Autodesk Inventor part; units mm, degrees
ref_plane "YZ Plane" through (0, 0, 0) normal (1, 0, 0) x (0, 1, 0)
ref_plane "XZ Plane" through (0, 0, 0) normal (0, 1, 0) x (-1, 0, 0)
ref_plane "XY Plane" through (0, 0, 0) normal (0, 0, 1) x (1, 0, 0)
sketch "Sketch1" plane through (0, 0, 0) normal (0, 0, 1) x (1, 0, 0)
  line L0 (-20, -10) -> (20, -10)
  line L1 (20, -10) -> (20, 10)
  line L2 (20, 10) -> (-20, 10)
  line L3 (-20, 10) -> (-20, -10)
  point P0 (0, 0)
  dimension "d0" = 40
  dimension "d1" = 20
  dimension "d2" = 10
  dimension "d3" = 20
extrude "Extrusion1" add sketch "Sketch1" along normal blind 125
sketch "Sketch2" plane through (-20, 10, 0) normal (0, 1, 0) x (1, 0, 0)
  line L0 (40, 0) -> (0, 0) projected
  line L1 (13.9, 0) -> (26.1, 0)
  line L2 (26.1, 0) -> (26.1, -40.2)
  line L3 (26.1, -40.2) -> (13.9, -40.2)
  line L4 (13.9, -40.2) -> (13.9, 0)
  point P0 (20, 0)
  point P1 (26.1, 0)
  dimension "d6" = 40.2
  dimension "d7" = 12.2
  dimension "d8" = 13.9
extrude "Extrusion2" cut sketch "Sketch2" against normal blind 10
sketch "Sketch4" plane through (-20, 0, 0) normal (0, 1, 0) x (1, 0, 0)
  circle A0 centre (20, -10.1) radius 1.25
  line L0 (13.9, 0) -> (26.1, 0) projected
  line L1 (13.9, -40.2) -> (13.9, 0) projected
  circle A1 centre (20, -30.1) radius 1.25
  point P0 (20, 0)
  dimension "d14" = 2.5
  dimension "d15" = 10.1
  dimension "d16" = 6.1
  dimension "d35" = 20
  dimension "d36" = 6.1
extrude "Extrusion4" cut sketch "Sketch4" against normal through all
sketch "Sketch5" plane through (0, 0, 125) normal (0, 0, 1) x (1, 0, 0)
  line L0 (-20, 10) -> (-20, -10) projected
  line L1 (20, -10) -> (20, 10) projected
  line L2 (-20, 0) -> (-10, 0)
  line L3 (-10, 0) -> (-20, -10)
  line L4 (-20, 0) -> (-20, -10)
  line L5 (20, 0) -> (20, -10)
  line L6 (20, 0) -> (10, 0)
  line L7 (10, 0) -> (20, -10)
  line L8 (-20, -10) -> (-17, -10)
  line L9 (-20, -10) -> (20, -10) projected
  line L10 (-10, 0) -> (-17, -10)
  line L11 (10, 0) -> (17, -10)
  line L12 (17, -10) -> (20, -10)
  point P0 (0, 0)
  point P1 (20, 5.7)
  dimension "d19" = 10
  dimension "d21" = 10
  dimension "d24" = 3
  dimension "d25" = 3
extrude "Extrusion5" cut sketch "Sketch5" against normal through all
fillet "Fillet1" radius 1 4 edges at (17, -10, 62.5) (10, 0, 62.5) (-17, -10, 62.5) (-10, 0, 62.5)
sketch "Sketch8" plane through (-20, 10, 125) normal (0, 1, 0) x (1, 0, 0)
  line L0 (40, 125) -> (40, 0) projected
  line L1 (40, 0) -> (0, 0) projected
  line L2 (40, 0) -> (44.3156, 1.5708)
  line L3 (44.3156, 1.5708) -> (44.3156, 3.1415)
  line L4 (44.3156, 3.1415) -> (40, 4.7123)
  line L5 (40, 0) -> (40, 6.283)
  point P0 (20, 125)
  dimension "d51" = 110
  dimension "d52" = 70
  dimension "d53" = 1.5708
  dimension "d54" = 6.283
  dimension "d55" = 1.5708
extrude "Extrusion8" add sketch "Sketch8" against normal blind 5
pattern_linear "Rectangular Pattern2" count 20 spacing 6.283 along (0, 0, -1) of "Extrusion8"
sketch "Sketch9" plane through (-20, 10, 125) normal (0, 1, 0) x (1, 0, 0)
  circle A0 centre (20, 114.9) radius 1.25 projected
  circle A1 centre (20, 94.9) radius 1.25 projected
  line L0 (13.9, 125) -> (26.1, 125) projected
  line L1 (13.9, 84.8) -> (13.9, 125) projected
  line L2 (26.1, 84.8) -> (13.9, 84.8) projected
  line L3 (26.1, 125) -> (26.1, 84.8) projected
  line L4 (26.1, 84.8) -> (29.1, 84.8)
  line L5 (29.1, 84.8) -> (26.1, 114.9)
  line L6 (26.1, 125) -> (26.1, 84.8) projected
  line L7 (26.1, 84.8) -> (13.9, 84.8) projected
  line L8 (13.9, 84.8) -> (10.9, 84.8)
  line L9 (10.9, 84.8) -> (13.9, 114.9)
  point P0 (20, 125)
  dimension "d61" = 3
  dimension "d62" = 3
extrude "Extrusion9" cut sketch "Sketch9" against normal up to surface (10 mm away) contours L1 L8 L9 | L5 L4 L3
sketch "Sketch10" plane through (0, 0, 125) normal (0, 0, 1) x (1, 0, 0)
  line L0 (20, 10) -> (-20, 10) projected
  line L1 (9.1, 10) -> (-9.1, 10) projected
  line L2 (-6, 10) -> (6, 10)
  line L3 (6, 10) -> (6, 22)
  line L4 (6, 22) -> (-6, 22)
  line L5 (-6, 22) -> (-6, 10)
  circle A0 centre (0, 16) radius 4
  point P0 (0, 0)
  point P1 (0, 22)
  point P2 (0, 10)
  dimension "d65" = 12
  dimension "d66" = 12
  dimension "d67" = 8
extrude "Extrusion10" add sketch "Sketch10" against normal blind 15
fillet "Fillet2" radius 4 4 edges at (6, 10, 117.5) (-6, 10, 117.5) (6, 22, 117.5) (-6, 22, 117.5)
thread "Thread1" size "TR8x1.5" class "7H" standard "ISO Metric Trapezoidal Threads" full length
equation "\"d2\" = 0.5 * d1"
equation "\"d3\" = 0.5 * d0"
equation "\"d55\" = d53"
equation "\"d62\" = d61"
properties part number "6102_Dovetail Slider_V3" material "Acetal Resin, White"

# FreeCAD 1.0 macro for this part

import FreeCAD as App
import Part
import Sketcher
from FreeCAD import Vector
Q = App.Units.Quantity


def edges_at(feature, points):
    """Names of the edges that pass closest to the given points."""
    edges = feature.Shape.Edges
    near = lambda p: min(range(len(edges)), key=lambda i: edges[i].distToShape(Part.Vertex(*p))[0])
    return sorted({f"Edge{near(p) + 1}" for p in points})

doc = App.newDocument("Part")
body = doc.addObject("PartDesign::Body", "Body")

# Sketch on XY plane
sketch1 = doc.addObject("Sketcher::SketchObject", "Sketch")
body.addObject(sketch1)
sketch1.AttachmentSupport = (doc.XY_Plane, [""])
sketch1.MapMode = "FlatFace"
sketch1.addGeometry(Part.LineSegment(Vector(-20, 10, 0), Vector(-20, -10, 0)), False)
sketch1.addGeometry(Part.LineSegment(Vector(-20, -10, 0), Vector(20, -10, 0)), False)
sketch1.addGeometry(Part.LineSegment(Vector(20, -10, 0), Vector(20, 10, 0)), False)
sketch1.addGeometry(Part.LineSegment(Vector(20, 10, 0), Vector(-20, 10, 0)), False)
sketch1.addConstraint(Sketcher.Constraint("Coincident", 0, 2, 1, 1))
sketch1.addConstraint(Sketcher.Constraint("Coincident", 1, 2, 2, 1))
sketch1.addConstraint(Sketcher.Constraint("Coincident", 2, 2, 3, 1))
sketch1.addConstraint(Sketcher.Constraint("Coincident", 3, 2, 0, 1))
sketch1.addConstraint(Sketcher.Constraint("Vertical", 0))
sketch1.addConstraint(Sketcher.Constraint("Horizontal", 1))
sketch1.addConstraint(Sketcher.Constraint("Vertical", 2))
sketch1.addConstraint(Sketcher.Constraint("Horizontal", 3))
sketch1.addConstraint(Sketcher.Constraint("Symmetric", 0, 2, 2, 2, -1, 1))
sketch1.addConstraint(Sketcher.Constraint("DistanceX", 1, 1, 1, 2, 40.0))
sketch1.addConstraint(Sketcher.Constraint("DistanceY", 0, 2, 0, 1, 20.0))
pad1 = doc.addObject("PartDesign::Pad", "Pad")
body.addObject(pad1)
pad1.Profile = sketch1
pad1.Length = 125

# Sketch on XZ plane
sketch2 = doc.addObject("Sketcher::SketchObject", "Sketch001")
body.addObject(sketch2)
sketch2.AttachmentSupport = (doc.XZ_Plane, [""])
sketch2.MapMode = "FlatFace"
sketch2.AttachmentOffset = App.Placement(Vector(0, 0, -10), App.Rotation())
sketch2.addGeometry(Part.LineSegment(Vector(6, 40, 0), Vector(6, 0, 0)), False)
sketch2.addGeometry(Part.LineSegment(Vector(6, 0, 0), Vector(-6, 0, 0)), False)
sketch2.addGeometry(Part.LineSegment(Vector(-6, 0, 0), Vector(-6, 40, 0)), False)
sketch2.addGeometry(Part.LineSegment(Vector(-6, 40, 0), Vector(6, 40, 0)), False)
sketch2.addConstraint(Sketcher.Constraint("Coincident", 0, 2, 1, 1))
sketch2.addConstraint(Sketcher.Constraint("Coincident", 1, 2, 2, 1))
sketch2.addConstraint(Sketcher.Constraint("Coincident", 2, 2, 3, 1))
sketch2.addConstraint(Sketcher.Constraint("Coincident", 3, 2, 0, 1))
sketch2.addConstraint(Sketcher.Constraint("Vertical", 0))
sketch2.addConstraint(Sketcher.Constraint("Horizontal", 1))
sketch2.addConstraint(Sketcher.Constraint("Vertical", 2))
sketch2.addConstraint(Sketcher.Constraint("Horizontal", 3))
sketch2.addConstraint(Sketcher.Constraint("Symmetric", 0, 2, 1, 2, -1, 1))
sketch2.addConstraint(Sketcher.Constraint("DistanceX", 1, 2, 1, 1, 12.2))
sketch2.addConstraint(Sketcher.Constraint("DistanceY", 0, 2, 0, 1, 40.2))
pocket1 = doc.addObject("PartDesign::Pocket", "Pocket")
body.addObject(pocket1)
pocket1.Profile = sketch2
pocket1.Length = 10
pocket1.Reversed = True

# Sketch on XZ plane
sketch3 = doc.addObject("Sketcher::SketchObject", "Sketch002")
body.addObject(sketch3)
sketch3.AttachmentSupport = (doc.XZ_Plane, [""])
sketch3.MapMode = "FlatFace"
sketch3.addGeometry(Part.Circle(Vector(0, 10.1, 0), Vector(0, 0, 1), 1.2), False)
sketch3.addGeometry(Part.Circle(Vector(0, 30.1, 0), Vector(0, 0, 1), 1.2), False)
sketch3.addConstraint(Sketcher.Constraint("Equal", 0, 1))
sketch3.addConstraint(Sketcher.Constraint("PointOnObject", 0, 3, -2))
sketch3.addConstraint(Sketcher.Constraint("PointOnObject", 1, 3, -2))
sketch3.addConstraint(Sketcher.Constraint("Diameter", 0, 2.5))
sketch3.addConstraint(Sketcher.Constraint("DistanceY", 0, 3, 1, 3, 20.0))
sketch3.addConstraint(Sketcher.Constraint("DistanceY", -1, 1, 0, 3, 10.1))
pocket2 = doc.addObject("PartDesign::Pocket", "Pocket001")
body.addObject(pocket2)
pocket2.Profile = sketch3
pocket2.Type = "ThroughAll"
pocket2.Reversed = True

# Sketch on XY plane
sketch4 = doc.addObject("Sketcher::SketchObject", "Sketch003")
body.addObject(sketch4)
sketch4.AttachmentSupport = (doc.XY_Plane, [""])
sketch4.MapMode = "FlatFace"
sketch4.AttachmentOffset = App.Placement(Vector(0, 0, 125), App.Rotation())
sketch4.addGeometry(Part.LineSegment(Vector(-10, 0, 0), Vector(-20, 0, 0)), False)
sketch4.addGeometry(Part.LineSegment(Vector(-20, 0, 0), Vector(-20, -10, 0)), False)
sketch4.addGeometry(Part.LineSegment(Vector(-20, -10, 0), Vector(-17, -10, 0)), False)
sketch4.addGeometry(Part.LineSegment(Vector(-17, -10, 0), Vector(-10, 0, 0)), False)
sketch4.addGeometry(Part.LineSegment(Vector(10, 0, 0), Vector(17, -10, 0)), False)
sketch4.addGeometry(Part.LineSegment(Vector(17, -10, 0), Vector(20, -10, 0)), False)
sketch4.addGeometry(Part.LineSegment(Vector(20, -10, 0), Vector(20, 0, 0)), False)
sketch4.addGeometry(Part.LineSegment(Vector(20, 0, 0), Vector(10, 0, 0)), False)
sketch4.addConstraint(Sketcher.Constraint("Coincident", 0, 2, 1, 1))
sketch4.addConstraint(Sketcher.Constraint("Coincident", 1, 2, 2, 1))
sketch4.addConstraint(Sketcher.Constraint("Coincident", 2, 2, 3, 1))
sketch4.addConstraint(Sketcher.Constraint("Coincident", 3, 2, 0, 1))
sketch4.addConstraint(Sketcher.Constraint("Coincident", 4, 2, 5, 1))
sketch4.addConstraint(Sketcher.Constraint("Coincident", 5, 2, 6, 1))
sketch4.addConstraint(Sketcher.Constraint("Coincident", 6, 2, 7, 1))
sketch4.addConstraint(Sketcher.Constraint("Coincident", 7, 2, 4, 1))
sketch4.addConstraint(Sketcher.Constraint("Horizontal", 0))
sketch4.addConstraint(Sketcher.Constraint("Vertical", 1))
sketch4.addConstraint(Sketcher.Constraint("Horizontal", 2))
sketch4.addConstraint(Sketcher.Constraint("Horizontal", 5))
sketch4.addConstraint(Sketcher.Constraint("Vertical", 6))
sketch4.addConstraint(Sketcher.Constraint("Horizontal", 7))
sketch4.addConstraint(Sketcher.Constraint("Symmetric", 0, 2, 6, 2, -1, 1))
sketch4.addConstraint(Sketcher.Constraint("Symmetric", 2, 2, 4, 2, -2))
sketch4.addConstraint(Sketcher.Constraint("Symmetric", 3, 2, 7, 2, -2))
sketch4.addConstraint(Sketcher.Constraint("Equal", 7, 1))
sketch4.addConstraint(Sketcher.Constraint("DistanceX", 0, 2, 0, 1, 10.0))
sketch4.addConstraint(Sketcher.Constraint("DistanceX", 2, 1, 2, 2, 3.0))
sketch4.addConstraint(Sketcher.Constraint("DistanceX", 3, 2, -1, 1, 10.0))
pocket3 = doc.addObject("PartDesign::Pocket", "Pocket002")
body.addObject(pocket3)
pocket3.Profile = sketch4
pocket3.Type = "ThroughAll"
doc.recompute()

fillet = doc.addObject("PartDesign::Fillet", "Fillet")
body.addObject(fillet)
fillet.Base = (pocket3, edges_at(pocket3, [
    (17, -10, 62.5),
    (10, 0, 62.5),
    (-17, -10, 62.5),
    (-10, 0, 62.5),
]))
fillet.Radius = 1

# Sketch on XZ plane
sketch5 = doc.addObject("Sketcher::SketchObject", "Sketch004")
body.addObject(sketch5)
sketch5.AttachmentSupport = (doc.XZ_Plane, [""])
sketch5.MapMode = "FlatFace"
sketch5.AttachmentOffset = App.Placement(Vector(0, 0, -10), App.Rotation())
sketch5.addGeometry(Part.LineSegment(Vector(24.3, 121.9, 0), Vector(20, 120.3, 0)), False)
sketch5.addGeometry(Part.LineSegment(Vector(20, 120.3, 0), Vector(20, 125, 0)), False)
sketch5.addGeometry(Part.LineSegment(Vector(20, 125, 0), Vector(24.3, 123.4, 0)), False)
sketch5.addGeometry(Part.LineSegment(Vector(24.3, 123.4, 0), Vector(24.3, 121.9, 0)), False)
sketch5.addConstraint(Sketcher.Constraint("Coincident", 0, 2, 1, 1))
sketch5.addConstraint(Sketcher.Constraint("Coincident", 1, 2, 2, 1))
sketch5.addConstraint(Sketcher.Constraint("Coincident", 2, 2, 3, 1))
sketch5.addConstraint(Sketcher.Constraint("Coincident", 3, 2, 0, 1))
sketch5.addConstraint(Sketcher.Constraint("Vertical", 1))
sketch5.addConstraint(Sketcher.Constraint("Vertical", 3))
sketch5.addConstraint(Sketcher.Constraint("Equal", 0, 2))
sketch5.addConstraint(Sketcher.Constraint("Angle", 0, Q("-159.9994 deg")))
sketch5.addConstraint(Sketcher.Constraint("DistanceY", 3, 2, 3, 1, 1.5707))
sketch5.addConstraint(Sketcher.Constraint("DistanceX", -1, 1, 0, 2, 20.0))
sketch5.addConstraint(Sketcher.Constraint("DistanceY", -1, 1, 1, 2, 125.0))
sketch5.addConstraint(Sketcher.Constraint("DistanceY", 2, 2, 1, 2, 1.5708))
pad2 = doc.addObject("PartDesign::Pad", "Pad001")
body.addObject(pad2)
pad2.Profile = sketch5
pad2.Length = 5
doc.recompute()

linearpattern = doc.addObject("PartDesign::LinearPattern", "LinearPattern")
body.addObject(linearpattern)
linearpattern.Originals = [pad2]
linearpattern.Direction = (doc.Z_Axis, [""])
linearpattern.Mode = "offset"
linearpattern.Offset = 6.283
linearpattern.Occurrences = 20
linearpattern.Reversed = True
body.Tip = linearpattern

# Sketch on XZ plane
sketch6 = doc.addObject("Sketcher::SketchObject", "Sketch005")
body.addObject(sketch6)
sketch6.AttachmentSupport = (doc.XZ_Plane, [""])
sketch6.MapMode = "FlatFace"
sketch6.AttachmentOffset = App.Placement(Vector(0, 0, -10), App.Rotation())
sketch6.addGeometry(Part.LineSegment(Vector(-6.1, 40.2, 0), Vector(-6.1, 10.1, 0)), False)
sketch6.addGeometry(Part.LineSegment(Vector(-6.1, 10.1, 0), Vector(-9.1, 40.2, 0)), False)
sketch6.addGeometry(Part.LineSegment(Vector(-9.1, 40.2, 0), Vector(-6.1, 40.2, 0)), False)
sketch6.addGeometry(Part.LineSegment(Vector(9.1, 40.2, 0), Vector(6.1, 10.1, 0)), False)
sketch6.addGeometry(Part.LineSegment(Vector(6.1, 10.1, 0), Vector(6.1, 40.2, 0)), False)
sketch6.addGeometry(Part.LineSegment(Vector(6.1, 40.2, 0), Vector(9.1, 40.2, 0)), False)
sketch6.addConstraint(Sketcher.Constraint("Coincident", 0, 2, 1, 1))
sketch6.addConstraint(Sketcher.Constraint("Coincident", 1, 2, 2, 1))
sketch6.addConstraint(Sketcher.Constraint("Coincident", 2, 2, 0, 1))
sketch6.addConstraint(Sketcher.Constraint("Coincident", 3, 2, 4, 1))
sketch6.addConstraint(Sketcher.Constraint("Coincident", 4, 2, 5, 1))
sketch6.addConstraint(Sketcher.Constraint("Coincident", 5, 2, 3, 1))
sketch6.addConstraint(Sketcher.Constraint("Vertical", 0))
sketch6.addConstraint(Sketcher.Constraint("Horizontal", 2))
sketch6.addConstraint(Sketcher.Constraint("Vertical", 4))
sketch6.addConstraint(Sketcher.Constraint("Horizontal", 5))
sketch6.addConstraint(Sketcher.Constraint("Symmetric", 0, 2, 3, 2, -2))
sketch6.addConstraint(Sketcher.Constraint("Symmetric", 1, 2, 5, 2, -2))
sketch6.addConstraint(Sketcher.Constraint("DistanceX", 2, 1, 2, 2, 3.0))
sketch6.addConstraint(Sketcher.Constraint("DistanceY", 0, 2, 0, 1, 30.1))
sketch6.addConstraint(Sketcher.Constraint("DistanceX", 0, 2, -1, 1, 6.1))
sketch6.addConstraint(Sketcher.Constraint("DistanceY", -1, 1, 0, 2, 10.1))
pocket4 = doc.addObject("PartDesign::Pocket", "Pocket003")
body.addObject(pocket4)
pocket4.Profile = sketch6
pocket4.Length = 10
pocket4.Reversed = True

# Sketch on XY plane
sketch7 = doc.addObject("Sketcher::SketchObject", "Sketch006")
body.addObject(sketch7)
sketch7.AttachmentSupport = (doc.XY_Plane, [""])
sketch7.MapMode = "FlatFace"
sketch7.AttachmentOffset = App.Placement(Vector(0, 0, 125), App.Rotation())
sketch7.addGeometry(Part.LineSegment(Vector(-6, 10, 0), Vector(6, 10, 0)), False)
sketch7.addGeometry(Part.LineSegment(Vector(6, 10, 0), Vector(6, 22, 0)), False)
sketch7.addGeometry(Part.LineSegment(Vector(6, 22, 0), Vector(-6, 22, 0)), False)
sketch7.addGeometry(Part.LineSegment(Vector(-6, 22, 0), Vector(-6, 10, 0)), False)
sketch7.addGeometry(Part.Circle(Vector(0, 16, 0), Vector(0, 0, 1), 4), False)
sketch7.addConstraint(Sketcher.Constraint("Coincident", 0, 2, 1, 1))
sketch7.addConstraint(Sketcher.Constraint("Coincident", 1, 2, 2, 1))
sketch7.addConstraint(Sketcher.Constraint("Coincident", 2, 2, 3, 1))
sketch7.addConstraint(Sketcher.Constraint("Coincident", 3, 2, 0, 1))
sketch7.addConstraint(Sketcher.Constraint("Horizontal", 0))
sketch7.addConstraint(Sketcher.Constraint("Vertical", 1))
sketch7.addConstraint(Sketcher.Constraint("Horizontal", 2))
sketch7.addConstraint(Sketcher.Constraint("Vertical", 3))
sketch7.addConstraint(Sketcher.Constraint("PointOnObject", 4, 3, -2))
sketch7.addConstraint(Sketcher.Constraint("Equal", 2, 1))
sketch7.addConstraint(Sketcher.Constraint("Diameter", 4, 8.0))
sketch7.addConstraint(Sketcher.Constraint("DistanceX", 0, 1, 0, 2, 12.0))
sketch7.addConstraint(Sketcher.Constraint("DistanceY", -1, 1, 4, 3, 16.0))
sketch7.addConstraint(Sketcher.Constraint("DistanceX", -1, 1, 0, 2, 6.0))
sketch7.addConstraint(Sketcher.Constraint("DistanceY", -1, 1, 0, 2, 10.0))
pad3 = doc.addObject("PartDesign::Pad", "Pad002")
body.addObject(pad3)
pad3.Profile = sketch7
pad3.Length = 15
pad3.Reversed = True
doc.recompute()

fillet2 = doc.addObject("PartDesign::Fillet", "Fillet001")
body.addObject(fillet2)
fillet2.Base = (pad3, edges_at(pad3, [
    (6, 10, 117.5),
    (-6, 10, 117.5),
    (6, 22, 117.5),
    (-6, 22, 117.5),
]))
fillet2.Radius = 4

doc.recompute()
